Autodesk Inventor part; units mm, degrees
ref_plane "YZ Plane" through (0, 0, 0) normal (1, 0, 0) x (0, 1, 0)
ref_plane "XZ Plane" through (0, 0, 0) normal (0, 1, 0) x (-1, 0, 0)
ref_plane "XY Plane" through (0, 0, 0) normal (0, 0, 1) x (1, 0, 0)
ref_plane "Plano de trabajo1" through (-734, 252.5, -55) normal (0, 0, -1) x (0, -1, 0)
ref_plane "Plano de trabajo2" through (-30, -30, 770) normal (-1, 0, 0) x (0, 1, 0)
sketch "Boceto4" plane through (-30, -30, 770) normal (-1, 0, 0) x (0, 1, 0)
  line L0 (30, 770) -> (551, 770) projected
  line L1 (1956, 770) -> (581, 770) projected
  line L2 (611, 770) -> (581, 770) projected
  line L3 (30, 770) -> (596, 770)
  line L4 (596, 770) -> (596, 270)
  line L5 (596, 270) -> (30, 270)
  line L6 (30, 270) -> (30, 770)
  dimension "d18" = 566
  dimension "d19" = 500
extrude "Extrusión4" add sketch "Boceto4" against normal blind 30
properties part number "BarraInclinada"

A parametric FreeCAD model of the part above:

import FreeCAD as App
import Part
import Sketcher
Q = App.Units.Quantity


def add_polygon(sketch, points):
    """Adds a closed chain of lines whose ends are joined by coincident constraints."""
    first, n = sketch.GeometryCount, len(points)
    for a, b in zip(points, points[1:] + points[:1]):
        sketch.addGeometry(Part.LineSegment(App.Vector(*a, 0), App.Vector(*b, 0)), False)
    for i in range(n):
        sketch.addConstraint(Sketcher.Constraint("Coincident", first + i, 2, first + (i + 1) % n, 1))

doc = App.newDocument("Part")
body = doc.addObject("PartDesign::Body", "Body")

sketch1 = body.newObject("Sketcher::SketchObject", "Sketch")
sketch1.AttachmentSupport = (doc.getObject("YZ_Plane"), [""])
sketch1.MapMode = "FlatFace"
sketch1.AttachmentOffset = App.Placement(App.Vector(0, 0, -30), App.Rotation())
add_polygon(sketch1, [(566, 0), (0, 0), (0, 500), (566, 500)])
sketch1.addConstraint(Sketcher.Constraint("Horizontal", 0))
sketch1.addConstraint(Sketcher.Constraint("Vertical", 1))
sketch1.addConstraint(Sketcher.Constraint("Horizontal", 2))
sketch1.addConstraint(Sketcher.Constraint("Vertical", 3))
sketch1.addConstraint(Sketcher.Constraint("Coincident", 0, 2, -1, 1))
sketch1.addConstraint(Sketcher.Constraint("DistanceX", 0, 2, 0, 1, Q("566 mm")))
sketch1.addConstraint(Sketcher.Constraint("DistanceY", 1, 1, 1, 2, Q("500 mm")))
pad1 = body.newObject("PartDesign::Pad", "Pad")
pad1.Profile = sketch1
pad1.Length = 30

doc.recompute()
